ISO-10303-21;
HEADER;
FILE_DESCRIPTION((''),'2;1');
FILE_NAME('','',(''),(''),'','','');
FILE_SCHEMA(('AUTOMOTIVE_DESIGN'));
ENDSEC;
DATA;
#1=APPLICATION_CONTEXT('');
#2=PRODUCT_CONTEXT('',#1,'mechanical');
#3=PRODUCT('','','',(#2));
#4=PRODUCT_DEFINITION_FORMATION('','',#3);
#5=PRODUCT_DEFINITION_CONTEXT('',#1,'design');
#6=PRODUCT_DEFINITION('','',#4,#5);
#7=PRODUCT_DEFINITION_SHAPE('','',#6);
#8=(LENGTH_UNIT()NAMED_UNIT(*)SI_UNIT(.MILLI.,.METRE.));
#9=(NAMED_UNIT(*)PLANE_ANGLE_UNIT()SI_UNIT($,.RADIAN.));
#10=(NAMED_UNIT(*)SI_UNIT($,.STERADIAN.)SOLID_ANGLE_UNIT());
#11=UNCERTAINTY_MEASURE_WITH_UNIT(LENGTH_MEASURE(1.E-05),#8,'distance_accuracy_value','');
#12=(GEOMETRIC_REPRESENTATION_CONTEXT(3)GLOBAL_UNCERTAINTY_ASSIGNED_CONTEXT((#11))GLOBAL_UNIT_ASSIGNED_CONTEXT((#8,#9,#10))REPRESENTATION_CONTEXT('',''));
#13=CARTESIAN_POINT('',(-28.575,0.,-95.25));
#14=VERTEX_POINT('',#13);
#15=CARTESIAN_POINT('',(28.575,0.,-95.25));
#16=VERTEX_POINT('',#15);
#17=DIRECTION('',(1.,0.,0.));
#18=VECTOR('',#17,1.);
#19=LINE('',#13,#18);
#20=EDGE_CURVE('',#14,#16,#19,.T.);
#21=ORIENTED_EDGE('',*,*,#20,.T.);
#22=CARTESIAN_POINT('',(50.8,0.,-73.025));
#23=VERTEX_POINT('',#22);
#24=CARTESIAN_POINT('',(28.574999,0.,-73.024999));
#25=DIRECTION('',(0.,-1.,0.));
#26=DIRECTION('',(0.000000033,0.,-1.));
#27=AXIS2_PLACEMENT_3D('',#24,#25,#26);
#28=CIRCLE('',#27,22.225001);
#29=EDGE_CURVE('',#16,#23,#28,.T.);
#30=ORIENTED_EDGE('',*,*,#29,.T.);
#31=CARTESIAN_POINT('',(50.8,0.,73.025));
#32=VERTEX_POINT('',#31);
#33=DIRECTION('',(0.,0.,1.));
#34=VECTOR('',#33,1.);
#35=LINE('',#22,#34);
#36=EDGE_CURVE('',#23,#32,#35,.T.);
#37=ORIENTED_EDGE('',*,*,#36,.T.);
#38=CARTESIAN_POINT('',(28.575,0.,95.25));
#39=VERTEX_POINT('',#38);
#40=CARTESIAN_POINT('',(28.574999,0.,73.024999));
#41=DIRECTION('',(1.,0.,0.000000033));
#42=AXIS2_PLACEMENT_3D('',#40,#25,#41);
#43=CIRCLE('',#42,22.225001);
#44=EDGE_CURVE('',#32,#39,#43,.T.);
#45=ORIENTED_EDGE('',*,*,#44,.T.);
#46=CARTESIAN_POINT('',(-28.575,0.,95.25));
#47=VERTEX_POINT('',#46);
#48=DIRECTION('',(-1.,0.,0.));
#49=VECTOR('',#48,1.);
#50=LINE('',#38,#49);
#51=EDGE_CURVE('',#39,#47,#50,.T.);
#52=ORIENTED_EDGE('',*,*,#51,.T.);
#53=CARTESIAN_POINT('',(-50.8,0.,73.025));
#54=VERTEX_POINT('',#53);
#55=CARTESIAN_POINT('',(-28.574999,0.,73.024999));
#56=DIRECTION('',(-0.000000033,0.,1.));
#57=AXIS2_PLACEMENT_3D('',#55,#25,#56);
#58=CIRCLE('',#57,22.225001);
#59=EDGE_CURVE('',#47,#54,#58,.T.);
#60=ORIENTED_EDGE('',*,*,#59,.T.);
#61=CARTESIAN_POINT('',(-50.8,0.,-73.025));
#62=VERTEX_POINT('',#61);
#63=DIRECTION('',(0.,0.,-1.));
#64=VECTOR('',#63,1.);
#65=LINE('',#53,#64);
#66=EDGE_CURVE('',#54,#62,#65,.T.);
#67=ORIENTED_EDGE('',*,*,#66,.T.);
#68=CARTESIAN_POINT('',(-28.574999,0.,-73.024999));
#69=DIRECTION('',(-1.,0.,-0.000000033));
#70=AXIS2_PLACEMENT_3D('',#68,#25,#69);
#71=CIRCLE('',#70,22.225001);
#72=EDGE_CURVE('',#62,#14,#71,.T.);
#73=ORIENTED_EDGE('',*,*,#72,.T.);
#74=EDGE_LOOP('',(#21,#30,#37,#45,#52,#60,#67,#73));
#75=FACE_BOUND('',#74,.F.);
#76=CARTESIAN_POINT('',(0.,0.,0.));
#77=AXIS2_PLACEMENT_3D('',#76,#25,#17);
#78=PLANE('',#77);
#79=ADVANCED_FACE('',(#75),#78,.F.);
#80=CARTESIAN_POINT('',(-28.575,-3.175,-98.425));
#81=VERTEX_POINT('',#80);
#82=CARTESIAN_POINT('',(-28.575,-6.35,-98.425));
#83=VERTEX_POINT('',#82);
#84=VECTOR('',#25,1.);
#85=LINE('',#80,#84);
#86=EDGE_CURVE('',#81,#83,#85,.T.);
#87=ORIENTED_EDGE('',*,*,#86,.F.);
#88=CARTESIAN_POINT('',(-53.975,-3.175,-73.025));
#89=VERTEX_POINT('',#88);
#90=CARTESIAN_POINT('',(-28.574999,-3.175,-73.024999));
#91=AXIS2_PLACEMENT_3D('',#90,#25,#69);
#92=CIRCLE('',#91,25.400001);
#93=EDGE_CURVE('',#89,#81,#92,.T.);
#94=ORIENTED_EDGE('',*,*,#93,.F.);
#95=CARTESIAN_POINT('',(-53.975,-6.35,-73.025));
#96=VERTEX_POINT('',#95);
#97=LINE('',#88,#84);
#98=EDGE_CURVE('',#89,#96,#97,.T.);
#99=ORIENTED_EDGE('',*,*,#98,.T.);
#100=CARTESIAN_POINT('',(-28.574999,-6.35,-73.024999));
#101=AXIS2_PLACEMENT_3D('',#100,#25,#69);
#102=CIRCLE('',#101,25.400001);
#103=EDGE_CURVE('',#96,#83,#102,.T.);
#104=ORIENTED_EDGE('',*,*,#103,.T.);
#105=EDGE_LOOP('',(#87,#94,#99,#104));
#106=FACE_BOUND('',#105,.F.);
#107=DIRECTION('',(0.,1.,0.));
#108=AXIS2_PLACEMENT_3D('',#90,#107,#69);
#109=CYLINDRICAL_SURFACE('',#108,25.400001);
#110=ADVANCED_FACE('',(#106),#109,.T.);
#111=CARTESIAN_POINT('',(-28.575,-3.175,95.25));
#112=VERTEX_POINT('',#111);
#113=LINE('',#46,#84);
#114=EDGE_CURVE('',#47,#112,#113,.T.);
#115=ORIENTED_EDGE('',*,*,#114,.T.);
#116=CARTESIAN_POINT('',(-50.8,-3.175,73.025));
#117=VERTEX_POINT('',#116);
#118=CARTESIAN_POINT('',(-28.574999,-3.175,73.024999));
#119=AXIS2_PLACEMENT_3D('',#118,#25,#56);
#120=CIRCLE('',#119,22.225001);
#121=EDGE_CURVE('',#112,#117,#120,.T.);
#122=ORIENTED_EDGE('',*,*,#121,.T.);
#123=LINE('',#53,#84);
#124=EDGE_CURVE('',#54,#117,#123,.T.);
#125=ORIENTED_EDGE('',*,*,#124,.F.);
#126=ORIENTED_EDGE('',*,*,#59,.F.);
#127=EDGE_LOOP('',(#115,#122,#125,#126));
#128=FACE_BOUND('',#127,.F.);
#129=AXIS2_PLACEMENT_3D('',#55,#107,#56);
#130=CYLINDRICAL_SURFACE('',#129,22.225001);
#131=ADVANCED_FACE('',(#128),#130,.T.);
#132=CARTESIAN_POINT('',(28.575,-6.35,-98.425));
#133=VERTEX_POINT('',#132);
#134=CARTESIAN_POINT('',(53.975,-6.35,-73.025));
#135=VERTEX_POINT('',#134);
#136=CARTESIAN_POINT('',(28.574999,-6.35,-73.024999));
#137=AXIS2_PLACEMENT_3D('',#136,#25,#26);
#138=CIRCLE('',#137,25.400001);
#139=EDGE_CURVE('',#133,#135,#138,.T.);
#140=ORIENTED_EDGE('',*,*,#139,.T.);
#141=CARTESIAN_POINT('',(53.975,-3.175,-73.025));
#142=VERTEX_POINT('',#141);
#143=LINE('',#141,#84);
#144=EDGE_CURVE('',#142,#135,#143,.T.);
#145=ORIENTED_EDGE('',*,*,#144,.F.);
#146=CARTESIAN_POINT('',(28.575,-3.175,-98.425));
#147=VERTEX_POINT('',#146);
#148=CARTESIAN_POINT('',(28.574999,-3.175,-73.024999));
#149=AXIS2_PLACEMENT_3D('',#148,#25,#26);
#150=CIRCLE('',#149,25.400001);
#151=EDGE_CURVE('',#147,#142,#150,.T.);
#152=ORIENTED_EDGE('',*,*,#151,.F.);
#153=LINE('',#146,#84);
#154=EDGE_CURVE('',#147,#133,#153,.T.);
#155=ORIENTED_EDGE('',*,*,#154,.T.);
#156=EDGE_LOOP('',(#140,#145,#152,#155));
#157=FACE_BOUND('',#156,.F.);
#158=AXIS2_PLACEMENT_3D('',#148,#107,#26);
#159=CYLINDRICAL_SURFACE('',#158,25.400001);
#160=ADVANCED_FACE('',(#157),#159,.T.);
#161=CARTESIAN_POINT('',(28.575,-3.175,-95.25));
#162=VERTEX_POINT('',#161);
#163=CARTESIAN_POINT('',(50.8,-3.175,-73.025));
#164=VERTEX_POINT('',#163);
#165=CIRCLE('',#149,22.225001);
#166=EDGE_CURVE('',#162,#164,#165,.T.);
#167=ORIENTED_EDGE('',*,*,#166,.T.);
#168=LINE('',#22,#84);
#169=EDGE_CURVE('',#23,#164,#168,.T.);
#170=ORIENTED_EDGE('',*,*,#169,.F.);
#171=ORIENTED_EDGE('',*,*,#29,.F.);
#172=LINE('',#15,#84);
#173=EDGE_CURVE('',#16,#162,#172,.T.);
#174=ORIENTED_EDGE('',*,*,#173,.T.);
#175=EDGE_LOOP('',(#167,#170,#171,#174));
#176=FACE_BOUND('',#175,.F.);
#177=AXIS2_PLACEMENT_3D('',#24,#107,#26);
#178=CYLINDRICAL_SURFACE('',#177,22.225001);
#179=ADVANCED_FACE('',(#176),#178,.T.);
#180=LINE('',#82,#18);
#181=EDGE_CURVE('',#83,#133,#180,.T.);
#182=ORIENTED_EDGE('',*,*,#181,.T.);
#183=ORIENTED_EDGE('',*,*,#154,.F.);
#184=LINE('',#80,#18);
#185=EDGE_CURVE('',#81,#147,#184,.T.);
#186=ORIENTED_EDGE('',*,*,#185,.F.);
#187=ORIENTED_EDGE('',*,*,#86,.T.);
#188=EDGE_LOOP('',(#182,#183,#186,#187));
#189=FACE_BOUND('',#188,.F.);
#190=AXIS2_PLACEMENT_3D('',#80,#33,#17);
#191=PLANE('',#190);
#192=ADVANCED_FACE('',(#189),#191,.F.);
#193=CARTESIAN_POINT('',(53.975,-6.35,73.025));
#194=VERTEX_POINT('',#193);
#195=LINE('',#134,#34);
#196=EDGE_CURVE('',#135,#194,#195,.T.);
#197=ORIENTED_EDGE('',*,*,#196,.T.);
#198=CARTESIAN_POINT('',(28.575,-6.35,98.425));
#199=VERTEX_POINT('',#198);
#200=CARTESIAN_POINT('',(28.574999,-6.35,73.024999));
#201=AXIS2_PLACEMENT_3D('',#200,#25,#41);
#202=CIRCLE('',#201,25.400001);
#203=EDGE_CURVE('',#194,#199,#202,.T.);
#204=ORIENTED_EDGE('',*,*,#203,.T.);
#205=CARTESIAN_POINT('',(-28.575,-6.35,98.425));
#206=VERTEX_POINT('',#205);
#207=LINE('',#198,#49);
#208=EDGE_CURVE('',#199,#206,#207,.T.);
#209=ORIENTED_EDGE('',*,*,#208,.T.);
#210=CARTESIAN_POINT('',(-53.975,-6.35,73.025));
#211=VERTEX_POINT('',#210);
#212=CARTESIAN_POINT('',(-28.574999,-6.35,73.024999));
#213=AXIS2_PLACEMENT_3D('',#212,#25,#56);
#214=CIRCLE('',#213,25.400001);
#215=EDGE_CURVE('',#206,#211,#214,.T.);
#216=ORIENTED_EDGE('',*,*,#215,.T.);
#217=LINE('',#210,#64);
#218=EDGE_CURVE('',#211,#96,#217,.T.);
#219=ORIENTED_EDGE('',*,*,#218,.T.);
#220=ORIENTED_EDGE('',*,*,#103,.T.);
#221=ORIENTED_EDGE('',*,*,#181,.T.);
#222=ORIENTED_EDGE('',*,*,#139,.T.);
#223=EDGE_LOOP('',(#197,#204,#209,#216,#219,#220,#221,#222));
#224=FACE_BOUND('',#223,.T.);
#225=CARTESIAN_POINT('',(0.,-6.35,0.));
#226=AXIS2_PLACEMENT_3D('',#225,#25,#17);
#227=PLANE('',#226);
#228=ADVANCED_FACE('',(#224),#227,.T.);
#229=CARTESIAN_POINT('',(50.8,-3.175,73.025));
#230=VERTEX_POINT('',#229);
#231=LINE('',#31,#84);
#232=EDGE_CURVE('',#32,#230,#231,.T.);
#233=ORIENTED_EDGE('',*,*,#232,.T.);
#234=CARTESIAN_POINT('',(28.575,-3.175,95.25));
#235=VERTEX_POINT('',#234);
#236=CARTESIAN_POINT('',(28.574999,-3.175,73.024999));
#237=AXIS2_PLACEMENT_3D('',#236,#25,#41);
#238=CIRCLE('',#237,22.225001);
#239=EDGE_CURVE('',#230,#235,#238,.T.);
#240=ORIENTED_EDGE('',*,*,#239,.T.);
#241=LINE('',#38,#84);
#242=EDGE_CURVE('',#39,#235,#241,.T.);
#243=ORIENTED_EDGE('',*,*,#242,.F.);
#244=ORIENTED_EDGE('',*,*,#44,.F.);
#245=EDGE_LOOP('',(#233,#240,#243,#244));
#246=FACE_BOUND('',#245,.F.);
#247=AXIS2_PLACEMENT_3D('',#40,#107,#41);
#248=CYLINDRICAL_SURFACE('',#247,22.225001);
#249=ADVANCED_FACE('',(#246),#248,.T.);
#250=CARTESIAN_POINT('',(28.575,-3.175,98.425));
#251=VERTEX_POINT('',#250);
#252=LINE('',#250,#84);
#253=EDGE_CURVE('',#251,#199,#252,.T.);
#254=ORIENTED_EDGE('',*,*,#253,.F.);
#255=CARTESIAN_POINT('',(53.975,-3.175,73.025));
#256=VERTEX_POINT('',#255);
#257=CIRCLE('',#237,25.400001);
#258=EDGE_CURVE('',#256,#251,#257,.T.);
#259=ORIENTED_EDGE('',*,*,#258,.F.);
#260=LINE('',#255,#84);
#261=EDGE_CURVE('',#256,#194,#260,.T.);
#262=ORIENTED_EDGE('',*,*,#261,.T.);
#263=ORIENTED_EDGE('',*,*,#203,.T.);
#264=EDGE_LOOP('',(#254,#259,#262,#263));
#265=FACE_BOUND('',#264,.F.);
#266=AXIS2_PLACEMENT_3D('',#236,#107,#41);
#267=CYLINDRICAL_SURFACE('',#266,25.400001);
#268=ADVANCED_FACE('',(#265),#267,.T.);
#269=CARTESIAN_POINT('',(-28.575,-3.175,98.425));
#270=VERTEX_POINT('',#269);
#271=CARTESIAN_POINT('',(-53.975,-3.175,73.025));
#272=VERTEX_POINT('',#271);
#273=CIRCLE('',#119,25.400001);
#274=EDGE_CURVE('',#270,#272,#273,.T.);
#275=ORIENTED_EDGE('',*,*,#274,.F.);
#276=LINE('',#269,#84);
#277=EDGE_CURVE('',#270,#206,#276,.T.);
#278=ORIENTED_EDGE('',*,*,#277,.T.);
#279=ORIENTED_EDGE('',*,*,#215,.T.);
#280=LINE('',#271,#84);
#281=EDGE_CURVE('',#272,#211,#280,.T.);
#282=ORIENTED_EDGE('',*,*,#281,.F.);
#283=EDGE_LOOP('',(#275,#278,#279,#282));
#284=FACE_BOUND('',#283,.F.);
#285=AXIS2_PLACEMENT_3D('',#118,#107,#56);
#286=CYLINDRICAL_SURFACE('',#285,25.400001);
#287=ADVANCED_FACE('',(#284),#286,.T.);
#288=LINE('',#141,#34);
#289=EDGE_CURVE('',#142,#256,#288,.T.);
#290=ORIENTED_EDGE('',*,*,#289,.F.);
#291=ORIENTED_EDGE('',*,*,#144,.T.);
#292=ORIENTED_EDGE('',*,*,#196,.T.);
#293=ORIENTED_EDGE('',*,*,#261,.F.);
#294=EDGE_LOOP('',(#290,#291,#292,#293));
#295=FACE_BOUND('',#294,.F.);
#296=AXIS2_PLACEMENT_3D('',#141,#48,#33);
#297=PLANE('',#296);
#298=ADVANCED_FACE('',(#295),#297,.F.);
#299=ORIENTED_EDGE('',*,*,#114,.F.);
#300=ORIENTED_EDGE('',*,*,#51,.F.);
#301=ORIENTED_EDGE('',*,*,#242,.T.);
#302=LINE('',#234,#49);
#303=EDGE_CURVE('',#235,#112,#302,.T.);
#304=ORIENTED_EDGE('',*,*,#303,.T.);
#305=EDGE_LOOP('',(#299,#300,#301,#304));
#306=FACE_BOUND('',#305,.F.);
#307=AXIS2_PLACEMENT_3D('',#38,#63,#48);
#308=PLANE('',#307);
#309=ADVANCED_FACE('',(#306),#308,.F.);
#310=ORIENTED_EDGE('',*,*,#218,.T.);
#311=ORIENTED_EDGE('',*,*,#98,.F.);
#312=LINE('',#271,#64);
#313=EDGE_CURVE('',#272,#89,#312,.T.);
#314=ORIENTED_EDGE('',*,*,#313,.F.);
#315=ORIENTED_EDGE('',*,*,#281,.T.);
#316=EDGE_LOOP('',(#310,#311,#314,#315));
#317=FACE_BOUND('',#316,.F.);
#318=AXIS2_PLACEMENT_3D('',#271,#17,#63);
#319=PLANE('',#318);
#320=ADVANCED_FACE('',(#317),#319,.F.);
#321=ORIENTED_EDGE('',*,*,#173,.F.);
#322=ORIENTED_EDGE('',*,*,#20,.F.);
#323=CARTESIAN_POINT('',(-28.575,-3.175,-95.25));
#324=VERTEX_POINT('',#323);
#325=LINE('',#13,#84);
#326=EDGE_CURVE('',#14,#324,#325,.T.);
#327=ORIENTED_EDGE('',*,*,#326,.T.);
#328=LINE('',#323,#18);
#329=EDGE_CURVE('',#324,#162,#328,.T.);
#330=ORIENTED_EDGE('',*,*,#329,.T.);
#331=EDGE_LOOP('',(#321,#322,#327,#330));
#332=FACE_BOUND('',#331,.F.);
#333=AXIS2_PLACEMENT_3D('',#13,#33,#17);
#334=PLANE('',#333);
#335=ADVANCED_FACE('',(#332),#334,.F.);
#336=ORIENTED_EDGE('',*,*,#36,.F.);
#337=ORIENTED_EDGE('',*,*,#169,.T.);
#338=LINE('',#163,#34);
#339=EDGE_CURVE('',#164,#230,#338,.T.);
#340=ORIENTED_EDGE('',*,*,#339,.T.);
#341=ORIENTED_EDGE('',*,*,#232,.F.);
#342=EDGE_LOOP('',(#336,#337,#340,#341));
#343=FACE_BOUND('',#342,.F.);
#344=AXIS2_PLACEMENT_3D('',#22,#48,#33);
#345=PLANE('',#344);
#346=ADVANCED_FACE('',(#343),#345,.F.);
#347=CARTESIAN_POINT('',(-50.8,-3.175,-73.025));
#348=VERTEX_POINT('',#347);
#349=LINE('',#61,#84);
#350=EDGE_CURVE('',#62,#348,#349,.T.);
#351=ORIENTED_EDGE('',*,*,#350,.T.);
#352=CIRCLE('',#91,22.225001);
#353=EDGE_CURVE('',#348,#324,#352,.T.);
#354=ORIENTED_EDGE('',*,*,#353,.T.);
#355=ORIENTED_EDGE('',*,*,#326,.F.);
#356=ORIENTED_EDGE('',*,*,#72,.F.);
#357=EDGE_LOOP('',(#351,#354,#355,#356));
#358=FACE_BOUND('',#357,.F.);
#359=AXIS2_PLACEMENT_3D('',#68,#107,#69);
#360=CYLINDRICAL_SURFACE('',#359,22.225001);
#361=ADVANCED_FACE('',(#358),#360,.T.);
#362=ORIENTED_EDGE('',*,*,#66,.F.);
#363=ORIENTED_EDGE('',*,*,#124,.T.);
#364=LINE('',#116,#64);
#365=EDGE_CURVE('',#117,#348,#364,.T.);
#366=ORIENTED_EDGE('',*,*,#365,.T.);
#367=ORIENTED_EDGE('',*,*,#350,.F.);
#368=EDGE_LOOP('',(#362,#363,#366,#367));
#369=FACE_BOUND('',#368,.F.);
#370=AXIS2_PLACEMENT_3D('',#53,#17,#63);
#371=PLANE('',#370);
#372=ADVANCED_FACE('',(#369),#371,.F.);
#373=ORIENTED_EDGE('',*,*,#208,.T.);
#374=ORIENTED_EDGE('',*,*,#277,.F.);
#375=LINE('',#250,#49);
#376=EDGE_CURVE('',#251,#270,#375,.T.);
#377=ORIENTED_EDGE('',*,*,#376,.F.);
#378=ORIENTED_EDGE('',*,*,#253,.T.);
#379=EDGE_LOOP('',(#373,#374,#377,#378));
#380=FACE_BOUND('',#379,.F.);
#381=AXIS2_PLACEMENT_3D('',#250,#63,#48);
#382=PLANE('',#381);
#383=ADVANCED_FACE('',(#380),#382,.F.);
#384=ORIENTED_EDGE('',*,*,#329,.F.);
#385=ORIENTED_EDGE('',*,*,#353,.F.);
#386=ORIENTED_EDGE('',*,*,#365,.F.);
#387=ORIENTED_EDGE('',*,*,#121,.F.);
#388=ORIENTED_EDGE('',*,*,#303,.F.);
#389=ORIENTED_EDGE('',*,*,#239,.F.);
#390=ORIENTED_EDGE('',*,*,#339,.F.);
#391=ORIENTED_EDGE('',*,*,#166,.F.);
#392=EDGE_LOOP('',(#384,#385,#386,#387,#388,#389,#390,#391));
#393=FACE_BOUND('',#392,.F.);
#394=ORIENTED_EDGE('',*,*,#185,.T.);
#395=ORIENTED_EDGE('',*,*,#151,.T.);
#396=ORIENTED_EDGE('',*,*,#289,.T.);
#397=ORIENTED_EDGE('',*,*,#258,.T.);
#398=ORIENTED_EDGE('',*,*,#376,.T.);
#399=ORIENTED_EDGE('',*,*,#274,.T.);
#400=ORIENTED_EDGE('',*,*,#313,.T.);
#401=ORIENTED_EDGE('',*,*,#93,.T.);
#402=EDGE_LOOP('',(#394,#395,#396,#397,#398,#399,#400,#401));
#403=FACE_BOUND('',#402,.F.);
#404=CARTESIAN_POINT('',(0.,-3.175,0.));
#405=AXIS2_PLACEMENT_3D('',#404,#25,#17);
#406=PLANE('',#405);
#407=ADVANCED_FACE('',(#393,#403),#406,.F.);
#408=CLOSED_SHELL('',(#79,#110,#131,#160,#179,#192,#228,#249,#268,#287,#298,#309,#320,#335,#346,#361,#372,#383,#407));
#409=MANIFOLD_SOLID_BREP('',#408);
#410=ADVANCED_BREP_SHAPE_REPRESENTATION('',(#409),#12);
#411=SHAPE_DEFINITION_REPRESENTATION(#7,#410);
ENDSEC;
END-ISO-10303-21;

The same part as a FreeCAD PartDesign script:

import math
import FreeCAD as App
import Part
import Sketcher
Q = App.Units.Quantity

doc = App.newDocument("Part")
body = doc.addObject("PartDesign::Body", "Body")

# Sketch on XZ plane
sketch1 = body.newObject("Sketcher::SketchObject", "Sketch")
sketch1.AttachmentSupport = (doc.getObject("XZ_Plane"), [""])
sketch1.MapMode = "FlatFace"
sketch1.addGeometry(Part.LineSegment(App.Vector(51, -73, 0), App.Vector(51, 73, 0)), False)
sketch1.addGeometry(Part.ArcOfCircle(Part.Circle(App.Vector(29, 73, 0), App.Vector(0, 0, 1), 22), math.radians(0), math.radians(90)), False)
sketch1.addGeometry(Part.LineSegment(App.Vector(29, 95, 0), App.Vector(-29, 95, 0)), False)
sketch1.addGeometry(Part.ArcOfCircle(Part.Circle(App.Vector(-29, 73, 0), App.Vector(0, 0, 1), 22), math.radians(90), math.radians(180)), False)
sketch1.addGeometry(Part.LineSegment(App.Vector(-51, 73, 0), App.Vector(-51, -73, 0)), False)
sketch1.addGeometry(Part.ArcOfCircle(Part.Circle(App.Vector(-29, -73, 0), App.Vector(0, 0, 1), 22), math.radians(-180), math.radians(-90)), False)
sketch1.addGeometry(Part.LineSegment(App.Vector(-29, -95, 0), App.Vector(29, -95, 0)), False)
sketch1.addGeometry(Part.ArcOfCircle(Part.Circle(App.Vector(29, -73, 0), App.Vector(0, 0, 1), 22), math.radians(-90), math.radians(0)), False)
sketch1.addConstraint(Sketcher.Constraint("Tangent", 0, 2, 1, 1))
sketch1.addConstraint(Sketcher.Constraint("Tangent", 1, 2, 2, 1))
sketch1.addConstraint(Sketcher.Constraint("Tangent", 2, 2, 3, 1))
sketch1.addConstraint(Sketcher.Constraint("Tangent", 3, 2, 4, 1))
sketch1.addConstraint(Sketcher.Constraint("Tangent", 4, 2, 5, 1))
sketch1.addConstraint(Sketcher.Constraint("Tangent", 5, 2, 6, 1))
sketch1.addConstraint(Sketcher.Constraint("Tangent", 6, 2, 7, 1))
sketch1.addConstraint(Sketcher.Constraint("Tangent", 7, 2, 0, 1))
sketch1.addConstraint(Sketcher.Constraint("Vertical", 0))
sketch1.addConstraint(Sketcher.Constraint("Horizontal", 2))
sketch1.addConstraint(Sketcher.Constraint("Vertical", 4))
sketch1.addConstraint(Sketcher.Constraint("Horizontal", 6))
sketch1.addConstraint(Sketcher.Constraint("Equal", 1, 3))
sketch1.addConstraint(Sketcher.Constraint("Equal", 3, 5))
sketch1.addConstraint(Sketcher.Constraint("Equal", 5, 7))
sketch1.addConstraint(Sketcher.Constraint("Symmetric", 1, 3, 5, 3, -1, 1))
sketch1.addConstraint(Sketcher.Constraint("DistanceX", -1, 1, 0, 2, Q("2 in")))
sketch1.addConstraint(Sketcher.Constraint("Radius", 1, Q("0.875 in")))
sketch1.addConstraint(Sketcher.Constraint("DistanceY", 0, 1, 0, 2, Q("5.75 in")))
pad1 = body.newObject("PartDesign::Pad", "Pad")
pad1.Profile = sketch1
pad1.Length = Q("0.125 in")

# Sketch on XZ plane
sketch2 = body.newObject("Sketcher::SketchObject", "Sketch001")
sketch2.AttachmentSupport = (doc.getObject("XZ_Plane"), [""])
sketch2.MapMode = "FlatFace"
sketch2.AttachmentOffset = App.Placement(App.Vector(0, 0, 0.125 * 25.4), App.Rotation())
sketch2.addGeometry(Part.LineSegment(App.Vector(-54, 73, 0), App.Vector(-54, -73, 0)), False)
sketch2.addGeometry(Part.ArcOfCircle(Part.Circle(App.Vector(-29, -73, 0), App.Vector(0, 0, 1), 25), math.radians(-180), math.radians(-90)), False)
sketch2.addGeometry(Part.LineSegment(App.Vector(-29, -98, 0), App.Vector(29, -98, 0)), False)
sketch2.addGeometry(Part.ArcOfCircle(Part.Circle(App.Vector(29, -73, 0), App.Vector(0, 0, 1), 25), math.radians(-90), math.radians(0)), False)
sketch2.addGeometry(Part.LineSegment(App.Vector(54, -73, 0), App.Vector(54, 73, 0)), False)
sketch2.addGeometry(Part.ArcOfCircle(Part.Circle(App.Vector(29, 73, 0), App.Vector(0, 0, 1), 25), math.radians(0), math.radians(90)), False)
sketch2.addGeometry(Part.LineSegment(App.Vector(29, 98, 0), App.Vector(-29, 98, 0)), False)
sketch2.addGeometry(Part.ArcOfCircle(Part.Circle(App.Vector(-29, 73, 0), App.Vector(0, 0, 1), 25), math.radians(90), math.radians(180)), False)
sketch2.addConstraint(Sketcher.Constraint("Tangent", 0, 2, 1, 1))
sketch2.addConstraint(Sketcher.Constraint("Tangent", 1, 2, 2, 1))
sketch2.addConstraint(Sketcher.Constraint("Tangent", 2, 2, 3, 1))
sketch2.addConstraint(Sketcher.Constraint("Tangent", 3, 2, 4, 1))
sketch2.addConstraint(Sketcher.Constraint("Tangent", 4, 2, 5, 1))
sketch2.addConstraint(Sketcher.Constraint("Tangent", 5, 2, 6, 1))
sketch2.addConstraint(Sketcher.Constraint("Tangent", 6, 2, 7, 1))
sketch2.addConstraint(Sketcher.Constraint("Tangent", 7, 2, 0, 1))
sketch2.addConstraint(Sketcher.Constraint("Vertical", 0))
sketch2.addConstraint(Sketcher.Constraint("Horizontal", 2))
sketch2.addConstraint(Sketcher.Constraint("Vertical", 4))
sketch2.addConstraint(Sketcher.Constraint("Horizontal", 6))
sketch2.addConstraint(Sketcher.Constraint("Equal", 1, 3))
sketch2.addConstraint(Sketcher.Constraint("Equal", 3, 5))
sketch2.addConstraint(Sketcher.Constraint("Equal", 5, 7))
sketch2.addConstraint(Sketcher.Constraint("Symmetric", 1, 3, 5, 3, -1, 1))
sketch2.addConstraint(Sketcher.Constraint("Radius", 1, Q("1 in")))
sketch2.addConstraint(Sketcher.Constraint("DistanceX", 2, 1, 2, 2, Q("2.25 in")))
sketch2.addConstraint(Sketcher.Constraint("DistanceY", 0, 2, 0, 1, Q("5.75 in")))
pad2 = body.newObject("PartDesign::Pad", "Pad001")
pad2.Profile = sketch2
pad2.Length = Q("0.125 in")

doc.recompute()
